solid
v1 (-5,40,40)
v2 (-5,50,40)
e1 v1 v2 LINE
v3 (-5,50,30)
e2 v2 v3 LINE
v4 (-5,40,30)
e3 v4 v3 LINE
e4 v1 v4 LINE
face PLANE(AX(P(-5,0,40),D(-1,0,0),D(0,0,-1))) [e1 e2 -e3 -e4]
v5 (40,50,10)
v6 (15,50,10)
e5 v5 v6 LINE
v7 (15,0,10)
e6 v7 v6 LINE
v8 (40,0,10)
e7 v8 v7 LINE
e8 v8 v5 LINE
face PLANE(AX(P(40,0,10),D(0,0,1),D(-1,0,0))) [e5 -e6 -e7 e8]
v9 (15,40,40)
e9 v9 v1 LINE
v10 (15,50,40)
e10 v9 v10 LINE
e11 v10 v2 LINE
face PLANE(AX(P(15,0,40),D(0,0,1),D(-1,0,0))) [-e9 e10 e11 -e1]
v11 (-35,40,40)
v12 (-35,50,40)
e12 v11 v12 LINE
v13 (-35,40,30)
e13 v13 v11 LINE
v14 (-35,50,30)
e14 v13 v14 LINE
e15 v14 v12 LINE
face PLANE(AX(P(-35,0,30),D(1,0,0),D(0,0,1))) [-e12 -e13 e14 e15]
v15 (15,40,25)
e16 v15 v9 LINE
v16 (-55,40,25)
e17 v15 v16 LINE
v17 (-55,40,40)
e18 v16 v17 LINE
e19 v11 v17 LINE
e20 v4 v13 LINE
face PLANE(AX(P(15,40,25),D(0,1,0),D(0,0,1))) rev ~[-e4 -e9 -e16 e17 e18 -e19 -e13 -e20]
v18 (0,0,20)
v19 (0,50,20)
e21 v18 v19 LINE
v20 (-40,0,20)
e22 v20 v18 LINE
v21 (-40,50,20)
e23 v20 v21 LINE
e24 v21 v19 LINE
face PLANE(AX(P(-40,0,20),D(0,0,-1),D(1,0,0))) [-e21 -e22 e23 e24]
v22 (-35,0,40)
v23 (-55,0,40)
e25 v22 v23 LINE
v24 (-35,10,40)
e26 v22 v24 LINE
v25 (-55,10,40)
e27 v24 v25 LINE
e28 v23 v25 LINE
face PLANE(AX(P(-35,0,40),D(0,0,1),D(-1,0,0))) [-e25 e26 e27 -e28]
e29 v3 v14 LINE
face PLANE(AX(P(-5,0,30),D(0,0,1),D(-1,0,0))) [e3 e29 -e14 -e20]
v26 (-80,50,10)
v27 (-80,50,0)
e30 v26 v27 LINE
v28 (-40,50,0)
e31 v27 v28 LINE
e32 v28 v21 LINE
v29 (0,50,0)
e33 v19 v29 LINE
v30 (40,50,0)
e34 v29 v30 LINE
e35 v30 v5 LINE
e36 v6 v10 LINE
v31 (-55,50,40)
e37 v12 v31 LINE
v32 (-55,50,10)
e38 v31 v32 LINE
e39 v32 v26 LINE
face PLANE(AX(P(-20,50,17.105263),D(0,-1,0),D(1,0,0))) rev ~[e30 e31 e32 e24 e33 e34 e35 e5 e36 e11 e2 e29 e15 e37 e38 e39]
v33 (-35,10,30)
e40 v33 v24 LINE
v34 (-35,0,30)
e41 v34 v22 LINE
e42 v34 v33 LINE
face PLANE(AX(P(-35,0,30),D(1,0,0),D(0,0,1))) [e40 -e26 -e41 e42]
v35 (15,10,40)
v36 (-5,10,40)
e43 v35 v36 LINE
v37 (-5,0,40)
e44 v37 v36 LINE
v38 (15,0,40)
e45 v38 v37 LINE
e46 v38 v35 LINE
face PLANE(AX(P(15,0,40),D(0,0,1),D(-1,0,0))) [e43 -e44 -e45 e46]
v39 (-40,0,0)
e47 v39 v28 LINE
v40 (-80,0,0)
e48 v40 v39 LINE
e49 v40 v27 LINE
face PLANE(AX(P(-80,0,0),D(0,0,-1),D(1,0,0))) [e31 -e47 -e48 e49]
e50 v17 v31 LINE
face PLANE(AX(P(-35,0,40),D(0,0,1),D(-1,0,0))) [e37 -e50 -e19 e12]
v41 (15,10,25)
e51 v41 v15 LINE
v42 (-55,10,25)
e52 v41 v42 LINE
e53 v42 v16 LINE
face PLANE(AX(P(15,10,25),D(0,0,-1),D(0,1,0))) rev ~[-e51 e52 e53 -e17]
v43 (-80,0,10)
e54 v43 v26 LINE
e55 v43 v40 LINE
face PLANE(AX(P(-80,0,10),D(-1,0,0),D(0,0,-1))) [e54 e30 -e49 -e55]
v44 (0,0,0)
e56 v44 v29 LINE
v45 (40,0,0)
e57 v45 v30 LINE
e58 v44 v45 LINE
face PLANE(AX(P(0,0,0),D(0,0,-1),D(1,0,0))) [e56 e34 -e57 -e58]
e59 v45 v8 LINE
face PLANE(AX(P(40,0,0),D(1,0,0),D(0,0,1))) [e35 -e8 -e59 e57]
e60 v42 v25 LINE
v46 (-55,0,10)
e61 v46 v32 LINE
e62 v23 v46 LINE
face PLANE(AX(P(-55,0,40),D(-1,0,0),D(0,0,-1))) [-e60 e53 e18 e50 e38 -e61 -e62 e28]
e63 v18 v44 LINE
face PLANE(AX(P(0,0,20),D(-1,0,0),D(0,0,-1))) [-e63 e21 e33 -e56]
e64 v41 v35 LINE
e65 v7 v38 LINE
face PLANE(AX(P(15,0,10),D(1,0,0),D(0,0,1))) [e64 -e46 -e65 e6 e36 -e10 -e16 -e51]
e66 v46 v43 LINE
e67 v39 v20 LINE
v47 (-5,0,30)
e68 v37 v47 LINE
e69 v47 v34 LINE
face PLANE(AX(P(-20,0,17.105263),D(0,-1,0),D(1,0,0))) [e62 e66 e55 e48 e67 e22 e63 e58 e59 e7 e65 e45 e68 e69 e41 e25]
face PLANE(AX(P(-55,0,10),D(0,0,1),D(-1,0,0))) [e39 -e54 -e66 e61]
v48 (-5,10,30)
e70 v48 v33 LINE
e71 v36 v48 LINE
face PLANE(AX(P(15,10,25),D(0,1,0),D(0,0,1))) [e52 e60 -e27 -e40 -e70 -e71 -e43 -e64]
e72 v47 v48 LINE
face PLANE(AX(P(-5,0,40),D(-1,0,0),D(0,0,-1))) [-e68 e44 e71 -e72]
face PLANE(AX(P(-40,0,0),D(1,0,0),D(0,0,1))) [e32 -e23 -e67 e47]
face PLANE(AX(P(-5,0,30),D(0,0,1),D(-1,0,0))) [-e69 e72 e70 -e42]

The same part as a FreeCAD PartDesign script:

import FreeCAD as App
import Part
import Sketcher


def add_polygon(sketch, points):
    """Adds a closed chain of lines whose ends are joined by coincident constraints."""
    first, n = sketch.GeometryCount, len(points)
    for a, b in zip(points, points[1:] + points[:1]):
        sketch.addGeometry(Part.LineSegment(App.Vector(*a, 0), App.Vector(*b, 0)), False)
    for i in range(n):
        sketch.addConstraint(Sketcher.Constraint("Coincident", first + i, 2, first + (i + 1) % n, 1))

doc = App.newDocument("Part")
params = doc.addObject("Spreadsheet::Sheet", "Params")
for row, (alias, value) in enumerate([
    ("sketch1_width", "40 mm"),
    ("sketch1_width2", "25 mm"),
    ("sketch1_width3", "20 mm"),
    ("sketch1_height", "10 mm"),
    ("pad1_length", "50 mm"),
    ("sketch2_width", "30 mm"),
    ("sketch2_height", "15 mm"),
    ("pocket1_length", "70 mm"),
], start=1):
    params.set(f"A{row}", alias)
    params.set(f"B{row}", "=" + value)
    params.setAlias(f"B{row}", alias)

body = doc.addObject("PartDesign::Body", "Body")

# Sketch on XZ plane
sketch1 = doc.addObject("Sketcher::SketchObject", "Sketch")
body.addObject(sketch1)
sketch1.AttachmentSupport = (doc.XZ_Plane, [""])
sketch1.MapMode = "FlatFace"
add_polygon(sketch1, [(0, 20), (0, 0), (40, 0), (40, 10), (15, 10), (15, 40), (-5, 40), (-5, 30), (-35, 30), (-35, 40), (-55, 40), (-55, 10), (-80, 10), (-80, 0), (-40, 0), (-40, 20)])  # lines 0-15
sketch1.addConstraint([
    Sketcher.Constraint("Vertical", 0),
    Sketcher.Constraint("Horizontal", 1),
    Sketcher.Constraint("Vertical", 2),
    Sketcher.Constraint("Horizontal", 3),
    Sketcher.Constraint("Vertical", 4),
    Sketcher.Constraint("Horizontal", 5),
    Sketcher.Constraint("Vertical", 6),
    Sketcher.Constraint("Horizontal", 7),
    Sketcher.Constraint("Vertical", 8),
    Sketcher.Constraint("Horizontal", 9),
    Sketcher.Constraint("Vertical", 10),
    Sketcher.Constraint("Horizontal", 11),
    Sketcher.Constraint("Vertical", 12),
    Sketcher.Constraint("Horizontal", 13),
    Sketcher.Constraint("Vertical", 14),
    Sketcher.Constraint("Horizontal", 15),
    Sketcher.Constraint("Coincident", 0, 2, -1, 1),
    Sketcher.Constraint("Symmetric", 1, 2, 13, 2, -1, 1),
    Sketcher.Constraint("Horizontal", 5, 2, 8, 2),
    Sketcher.Constraint("Horizontal", 3, 2, 10, 2),
    Sketcher.Constraint("Equal", 5, 9),
    Sketcher.Constraint("Equal", 3, 11),
    Sketcher.Constraint("Equal", 1, 13),
    Sketcher.Constraint("Equal", 9, 0),
    Sketcher.Constraint("Equal", 7, 4),
    Sketcher.Constraint("Equal", 2, 6),
    Sketcher.Constraint("DistanceX", 1, 1, 1, 2, 40.0),
    Sketcher.Constraint("DistanceX", 3, 2, 3, 1, 25.0),
    Sketcher.Constraint("DistanceX", 5, 2, 5, 1, 20.0),
    Sketcher.Constraint("DistanceY", 2, 1, 2, 2, 10.0),
])
sketch1.setExpression("Constraints[42]", "Params.sketch1_width")
sketch1.setExpression("Constraints[43]", "Params.sketch1_width2")
sketch1.setExpression("Constraints[44]", "Params.sketch1_width3")
sketch1.setExpression("Constraints[45]", "Params.sketch1_height")
pad1 = doc.addObject("PartDesign::Pad", "Pad")
body.addObject(pad1)
pad1.Profile = sketch1
pad1.setExpression("Length", "Params.pad1_length")
pad1.Reversed = True

# Sketch on YZ plane
sketch2 = doc.addObject("Sketcher::SketchObject", "Sketch001")
body.addObject(sketch2)
sketch2.AttachmentSupport = (doc.YZ_Plane, [""])
sketch2.MapMode = "FlatFace"
sketch2.AttachmentOffset = App.Placement(App.Vector(0, 0, 15), App.Rotation())
add_polygon(sketch2, [(10, 40), (10, 25), (40, 25), (40, 40)])  # lines 0-3
sketch2.addConstraint([
    Sketcher.Constraint("Vertical", 0),
    Sketcher.Constraint("Horizontal", 1),
    Sketcher.Constraint("Vertical", 2),
    Sketcher.Constraint("Horizontal", 3),
    Sketcher.Constraint("DistanceX", 1, 1, 1, 2, 30.0),
    Sketcher.Constraint("DistanceY", 0, 2, 0, 1, 15.0),
    Sketcher.Constraint("DistanceX", -1, 1, 0, 2, 10.0),
    Sketcher.Constraint("DistanceY", -1, 1, 0, 2, 25.0),
])
sketch2.setExpression("Constraints[8]", "Params.sketch2_width")
sketch2.setExpression("Constraints[9]", "Params.sketch2_height")
pocket1 = doc.addObject("PartDesign::Pocket", "Pocket")
body.addObject(pocket1)
pocket1.Profile = sketch2
pocket1.setExpression("Length", "Params.pocket1_length")

doc.recompute()
